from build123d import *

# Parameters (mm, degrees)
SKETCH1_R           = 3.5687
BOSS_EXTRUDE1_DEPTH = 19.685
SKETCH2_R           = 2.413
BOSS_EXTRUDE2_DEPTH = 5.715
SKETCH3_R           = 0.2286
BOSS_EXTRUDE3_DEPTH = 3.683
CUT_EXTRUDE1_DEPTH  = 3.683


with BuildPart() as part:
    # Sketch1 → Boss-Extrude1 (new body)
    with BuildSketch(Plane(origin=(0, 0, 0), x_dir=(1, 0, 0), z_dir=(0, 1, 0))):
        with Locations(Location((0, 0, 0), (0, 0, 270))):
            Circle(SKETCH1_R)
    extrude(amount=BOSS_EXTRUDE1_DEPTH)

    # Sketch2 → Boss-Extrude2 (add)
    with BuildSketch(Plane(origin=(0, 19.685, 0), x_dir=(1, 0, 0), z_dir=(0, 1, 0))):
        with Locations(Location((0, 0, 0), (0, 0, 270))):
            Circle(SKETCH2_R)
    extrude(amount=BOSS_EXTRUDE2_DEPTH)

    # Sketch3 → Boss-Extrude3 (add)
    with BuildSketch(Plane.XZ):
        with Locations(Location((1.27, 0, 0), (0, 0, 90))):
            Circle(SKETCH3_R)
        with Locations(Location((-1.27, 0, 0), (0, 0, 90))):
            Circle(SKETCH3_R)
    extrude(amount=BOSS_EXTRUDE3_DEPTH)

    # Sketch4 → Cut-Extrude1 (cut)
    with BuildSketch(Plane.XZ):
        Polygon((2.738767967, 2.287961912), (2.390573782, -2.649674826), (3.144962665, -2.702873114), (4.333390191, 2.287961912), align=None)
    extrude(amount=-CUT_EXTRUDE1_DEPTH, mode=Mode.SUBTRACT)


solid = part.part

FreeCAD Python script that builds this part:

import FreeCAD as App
import Part
import Sketcher
Q = App.Units.Quantity

doc = App.newDocument("Part")
body = doc.addObject("PartDesign::Body", "Body")

# Sketch on XZ plane
sketch1 = body.newObject("Sketcher::SketchObject", "Sketch")
sketch1.AttachmentSupport = (doc.getObject("XZ_Plane"), [""])
sketch1.MapMode = "FlatFace"
sketch1.addGeometry(Part.Circle(App.Vector(0, 0, 0), App.Vector(0, 0, 1), 3.6), False)
sketch1.addConstraint([
    Sketcher.Constraint("Coincident", 0, 3, -1, 1),
    Sketcher.Constraint("Diameter", 0, Q("0.281 in")),
])
pad1 = body.newObject("PartDesign::Pad", "Pad")
pad1.Profile = sketch1
pad1.Length = Q("0.775 in")
pad1.Reversed = True

# Sketch on XZ plane
sketch2 = body.newObject("Sketcher::SketchObject", "Sketch001")
sketch2.AttachmentSupport = (doc.getObject("XZ_Plane"), [""])
sketch2.MapMode = "FlatFace"
sketch2.AttachmentOffset = App.Placement(App.Vector(0, 0, -0.775 * 25.4), App.Rotation())
sketch2.addGeometry(Part.Circle(App.Vector(0, 0, 0), App.Vector(0, 0, 1), 2.4), False)
sketch2.addConstraint([
    Sketcher.Constraint("Coincident", 0, 3, -1, 1),
    Sketcher.Constraint("Diameter", 0, Q("0.19 in")),
])
pad2 = body.newObject("PartDesign::Pad", "Pad001")
pad2.Profile = sketch2
pad2.Length = Q("0.225 in")
pad2.Reversed = True

# Sketch on XZ plane
sketch3 = body.newObject("Sketcher::SketchObject", "Sketch002")
sketch3.AttachmentSupport = (doc.getObject("XZ_Plane"), [""])
sketch3.MapMode = "FlatFace"
sketch3.addGeometry([
    Part.Circle(App.Vector(1.27, 0, 0), App.Vector(0, 0, 1), 0.23),
    Part.Circle(App.Vector(-1.27, 0, 0), App.Vector(0, 0, 1), 0.23),
], False)
sketch3.addConstraint([
    Sketcher.Constraint("Equal", 0, 1),
    Sketcher.Constraint("Symmetric", 0, 3, 1, 3, -1, 1),
    Sketcher.Constraint("PointOnObject", 0, 3, -1),
    Sketcher.Constraint("Diameter", 0, Q("0.018 in")),
    Sketcher.Constraint("DistanceX", 1, 3, 0, 3, Q("0.1 in")),
])
pad3 = body.newObject("PartDesign::Pad", "Pad002")
pad3.Profile = sketch3
pad3.Length = Q("0.145 in")

# Sketch on XZ plane
sketch4 = body.newObject("Sketcher::SketchObject", "Sketch003")
sketch4.AttachmentSupport = (doc.getObject("XZ_Plane"), [""])
sketch4.MapMode = "FlatFace"
sketch4.addGeometry([
    Part.LineSegment(App.Vector(2.7, 2.3, 0), App.Vector(2.4, -2.6, 0)),
    Part.LineSegment(App.Vector(2.4, -2.6, 0), App.Vector(3.1, -2.7, 0)),
    Part.LineSegment(App.Vector(3.1, -2.7, 0), App.Vector(4.3, 2.3, 0)),
    Part.LineSegment(App.Vector(4.3, 2.3, 0), App.Vector(2.7, 2.3, 0)),
], False)
sketch4.addConstraint([
    Sketcher.Constraint("Coincident", 0, 2, 1, 1),
    Sketcher.Constraint("Coincident", 1, 2, 2, 1),
    Sketcher.Constraint("Coincident", 2, 2, 3, 1),
    Sketcher.Constraint("Coincident", 3, 2, 0, 1),
    Sketcher.Constraint("Horizontal", 3),
    Sketcher.Constraint("Perpendicular", 0, 1),
    Sketcher.Constraint("Distance", 0, Q("4.949899 mm")),
    Sketcher.Constraint("DistanceY", 1, 2, 0, 2, Q("0.053198 mm")),
    Sketcher.Constraint("Distance", 2, Q("5.13038 mm")),
    Sketcher.Constraint("DistanceX", 3, 2, 3, 1, Q("1.594622 mm")),
    Sketcher.Constraint("DistanceX", -1, 1, 2, 2, Q("4.33339 mm")),
    Sketcher.Constraint("DistanceY", -1, 1, 2, 2, Q("2.287962 mm")),
])
pocket1 = body.newObject("PartDesign::Pocket", "Pocket")
pocket1.Profile = sketch4
pocket1.Length = Q("0.145 in")

doc.recompute()
